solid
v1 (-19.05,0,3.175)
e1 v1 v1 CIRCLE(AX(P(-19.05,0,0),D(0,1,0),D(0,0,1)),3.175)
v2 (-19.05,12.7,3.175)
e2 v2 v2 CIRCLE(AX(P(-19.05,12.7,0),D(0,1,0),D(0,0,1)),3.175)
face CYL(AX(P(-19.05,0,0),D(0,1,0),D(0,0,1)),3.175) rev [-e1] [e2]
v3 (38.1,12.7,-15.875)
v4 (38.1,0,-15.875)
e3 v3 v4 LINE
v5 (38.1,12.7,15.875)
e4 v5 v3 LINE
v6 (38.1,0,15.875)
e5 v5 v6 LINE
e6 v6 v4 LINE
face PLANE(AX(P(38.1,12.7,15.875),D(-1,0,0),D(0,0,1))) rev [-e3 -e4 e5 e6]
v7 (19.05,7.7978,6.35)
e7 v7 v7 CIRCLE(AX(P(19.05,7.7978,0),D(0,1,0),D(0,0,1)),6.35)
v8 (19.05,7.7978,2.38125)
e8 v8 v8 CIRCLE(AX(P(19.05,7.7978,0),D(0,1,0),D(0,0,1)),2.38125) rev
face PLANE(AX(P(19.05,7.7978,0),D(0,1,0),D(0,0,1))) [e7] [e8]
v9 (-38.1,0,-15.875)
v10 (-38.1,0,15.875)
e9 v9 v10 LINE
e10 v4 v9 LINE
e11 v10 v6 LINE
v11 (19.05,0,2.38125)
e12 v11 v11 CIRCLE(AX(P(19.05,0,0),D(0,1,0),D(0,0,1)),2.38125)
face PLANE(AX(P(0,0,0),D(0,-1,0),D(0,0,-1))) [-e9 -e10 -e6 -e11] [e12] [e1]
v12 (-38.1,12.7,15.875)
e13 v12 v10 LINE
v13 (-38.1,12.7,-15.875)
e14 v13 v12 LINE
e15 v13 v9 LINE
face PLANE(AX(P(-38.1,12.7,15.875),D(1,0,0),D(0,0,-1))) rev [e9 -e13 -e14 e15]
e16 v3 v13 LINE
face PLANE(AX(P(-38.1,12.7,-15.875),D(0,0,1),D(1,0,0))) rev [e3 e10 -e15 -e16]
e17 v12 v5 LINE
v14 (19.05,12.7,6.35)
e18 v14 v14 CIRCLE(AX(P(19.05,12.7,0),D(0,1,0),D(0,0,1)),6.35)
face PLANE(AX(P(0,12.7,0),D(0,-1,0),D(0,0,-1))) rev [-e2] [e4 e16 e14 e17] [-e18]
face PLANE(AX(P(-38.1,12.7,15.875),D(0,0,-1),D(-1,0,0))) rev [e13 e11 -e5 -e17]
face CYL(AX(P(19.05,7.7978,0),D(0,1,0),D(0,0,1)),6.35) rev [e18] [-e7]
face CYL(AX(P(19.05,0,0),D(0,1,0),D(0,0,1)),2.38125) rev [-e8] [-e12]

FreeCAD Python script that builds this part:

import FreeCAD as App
import Part
import Sketcher
from FreeCAD import Vector
Q = App.Units.Quantity


def add_polygon(sketch, points):
    """Adds a closed chain of lines whose ends are joined by coincident constraints."""
    first, n = sketch.GeometryCount, len(points)
    for a, b in zip(points, points[1:] + points[:1]):
        sketch.addGeometry(Part.LineSegment(App.Vector(*a, 0), App.Vector(*b, 0)), False)
    for i in range(n):
        sketch.addConstraint(Sketcher.Constraint("Coincident", first + i, 2, first + (i + 1) % n, 1))

doc = App.newDocument("Part")
params = doc.addObject("Spreadsheet::Sheet", "Params")
for row, (alias, value) in enumerate([
    ("sketch1_width", "3 in"),
    ("sketch1_height", "1.25 in"),
    ("pad1_length", "0.5 in"),
    ("sketch2_diameter", "0.25 in"),
    ("sketch2_diameter2", "0.1875 in"),
    ("sketch3_diameter", "0.5 in"),
    ("pocket2_length", "0.193 in"),
], start=1):
    params.set(f"A{row}", alias)
    params.set(f"B{row}", "=" + value)
    params.setAlias(f"B{row}", alias)

body = doc.addObject("PartDesign::Body", "Body")

sketch1 = doc.addObject("Sketcher::SketchObject", "Sketch")
body.addObject(sketch1)
sketch1.AttachmentSupport = (doc.XZ_Plane, [""])
sketch1.MapMode = "FlatFace"
add_polygon(sketch1, [(-38, -16), (-38, 16), (38, 16), (38, -16)])
sketch1.addConstraint([
    Sketcher.Constraint("Vertical", 0),
    Sketcher.Constraint("Horizontal", 1),
    Sketcher.Constraint("Vertical", 2),
    Sketcher.Constraint("Horizontal", 3),
    Sketcher.Constraint("Symmetric", 0, 2, 2, 2, -1, 1),
    Sketcher.Constraint("DistanceX", 1, 1, 1, 2, Q("3 in")),
    Sketcher.Constraint("DistanceY", 0, 1, 0, 2, Q("1.25 in")),
])
sketch1.setExpression("Constraints[9]", "Params.sketch1_width")
sketch1.setExpression("Constraints[10]", "Params.sketch1_height")
pad1 = doc.addObject("PartDesign::Pad", "Pad")
body.addObject(pad1)
pad1.Profile = sketch1
pad1.setExpression("Length", "Params.pad1_length")
pad1.Reversed = True

sketch2 = doc.addObject("Sketcher::SketchObject", "Sketch001")
body.addObject(sketch2)
sketch2.AttachmentSupport = (doc.XZ_Plane, [""])
sketch2.MapMode = "FlatFace"
sketch2.AttachmentOffset = App.Placement(Vector(0, 0, -0.5 * 25.4), App.Rotation())
sketch2.addGeometry([
    Part.Circle(Vector(-19.1, 0, 0), Vector(0, 0, 1), 3.2),
    Part.Circle(Vector(19.1, 0, 0), Vector(0, 0, 1), 2.4),
], False)
sketch2.addConstraint([
    Sketcher.Constraint("Symmetric", 0, 3, 1, 3, -1, 1),
    Sketcher.Constraint("PointOnObject", 0, 3, -1),
    Sketcher.Constraint("Diameter", 0, Q("0.25 in")),
    Sketcher.Constraint("Diameter", 1, Q("0.1875 in")),
    Sketcher.Constraint("DistanceX", 0, 3, 1, 3, Q("1.5 in")),
])
sketch2.setExpression("Constraints[2]", "Params.sketch2_diameter")
sketch2.setExpression("Constraints[3]", "Params.sketch2_diameter2")
pocket1 = doc.addObject("PartDesign::Pocket", "Pocket")
body.addObject(pocket1)
pocket1.Profile = sketch2
pocket1.Type = "ThroughAll"
pocket1.Reversed = True

sketch3 = doc.addObject("Sketcher::SketchObject", "Sketch002")
body.addObject(sketch3)
sketch3.AttachmentSupport = (doc.XZ_Plane, [""])
sketch3.MapMode = "FlatFace"
sketch3.AttachmentOffset = App.Placement(Vector(0, 0, -0.5 * 25.4), App.Rotation())
sketch3.addGeometry(Part.Circle(Vector(19, 0, 0), Vector(0, 0, 1), 6), False)
sketch3.addConstraint([
    Sketcher.Constraint("PointOnObject", 0, 3, -1),
    Sketcher.Constraint("Diameter", 0, Q("0.5 in")),
    Sketcher.Constraint("DistanceX", -1, 1, 0, 3, Q("0.75 in")),
])
sketch3.setExpression("Constraints[1]", "Params.sketch3_diameter")
pocket2 = doc.addObject("PartDesign::Pocket", "Pocket001")
body.addObject(pocket2)
pocket2.Profile = sketch3
pocket2.setExpression("Length", "Params.pocket2_length")
pocket2.Reversed = True

doc.recompute()
